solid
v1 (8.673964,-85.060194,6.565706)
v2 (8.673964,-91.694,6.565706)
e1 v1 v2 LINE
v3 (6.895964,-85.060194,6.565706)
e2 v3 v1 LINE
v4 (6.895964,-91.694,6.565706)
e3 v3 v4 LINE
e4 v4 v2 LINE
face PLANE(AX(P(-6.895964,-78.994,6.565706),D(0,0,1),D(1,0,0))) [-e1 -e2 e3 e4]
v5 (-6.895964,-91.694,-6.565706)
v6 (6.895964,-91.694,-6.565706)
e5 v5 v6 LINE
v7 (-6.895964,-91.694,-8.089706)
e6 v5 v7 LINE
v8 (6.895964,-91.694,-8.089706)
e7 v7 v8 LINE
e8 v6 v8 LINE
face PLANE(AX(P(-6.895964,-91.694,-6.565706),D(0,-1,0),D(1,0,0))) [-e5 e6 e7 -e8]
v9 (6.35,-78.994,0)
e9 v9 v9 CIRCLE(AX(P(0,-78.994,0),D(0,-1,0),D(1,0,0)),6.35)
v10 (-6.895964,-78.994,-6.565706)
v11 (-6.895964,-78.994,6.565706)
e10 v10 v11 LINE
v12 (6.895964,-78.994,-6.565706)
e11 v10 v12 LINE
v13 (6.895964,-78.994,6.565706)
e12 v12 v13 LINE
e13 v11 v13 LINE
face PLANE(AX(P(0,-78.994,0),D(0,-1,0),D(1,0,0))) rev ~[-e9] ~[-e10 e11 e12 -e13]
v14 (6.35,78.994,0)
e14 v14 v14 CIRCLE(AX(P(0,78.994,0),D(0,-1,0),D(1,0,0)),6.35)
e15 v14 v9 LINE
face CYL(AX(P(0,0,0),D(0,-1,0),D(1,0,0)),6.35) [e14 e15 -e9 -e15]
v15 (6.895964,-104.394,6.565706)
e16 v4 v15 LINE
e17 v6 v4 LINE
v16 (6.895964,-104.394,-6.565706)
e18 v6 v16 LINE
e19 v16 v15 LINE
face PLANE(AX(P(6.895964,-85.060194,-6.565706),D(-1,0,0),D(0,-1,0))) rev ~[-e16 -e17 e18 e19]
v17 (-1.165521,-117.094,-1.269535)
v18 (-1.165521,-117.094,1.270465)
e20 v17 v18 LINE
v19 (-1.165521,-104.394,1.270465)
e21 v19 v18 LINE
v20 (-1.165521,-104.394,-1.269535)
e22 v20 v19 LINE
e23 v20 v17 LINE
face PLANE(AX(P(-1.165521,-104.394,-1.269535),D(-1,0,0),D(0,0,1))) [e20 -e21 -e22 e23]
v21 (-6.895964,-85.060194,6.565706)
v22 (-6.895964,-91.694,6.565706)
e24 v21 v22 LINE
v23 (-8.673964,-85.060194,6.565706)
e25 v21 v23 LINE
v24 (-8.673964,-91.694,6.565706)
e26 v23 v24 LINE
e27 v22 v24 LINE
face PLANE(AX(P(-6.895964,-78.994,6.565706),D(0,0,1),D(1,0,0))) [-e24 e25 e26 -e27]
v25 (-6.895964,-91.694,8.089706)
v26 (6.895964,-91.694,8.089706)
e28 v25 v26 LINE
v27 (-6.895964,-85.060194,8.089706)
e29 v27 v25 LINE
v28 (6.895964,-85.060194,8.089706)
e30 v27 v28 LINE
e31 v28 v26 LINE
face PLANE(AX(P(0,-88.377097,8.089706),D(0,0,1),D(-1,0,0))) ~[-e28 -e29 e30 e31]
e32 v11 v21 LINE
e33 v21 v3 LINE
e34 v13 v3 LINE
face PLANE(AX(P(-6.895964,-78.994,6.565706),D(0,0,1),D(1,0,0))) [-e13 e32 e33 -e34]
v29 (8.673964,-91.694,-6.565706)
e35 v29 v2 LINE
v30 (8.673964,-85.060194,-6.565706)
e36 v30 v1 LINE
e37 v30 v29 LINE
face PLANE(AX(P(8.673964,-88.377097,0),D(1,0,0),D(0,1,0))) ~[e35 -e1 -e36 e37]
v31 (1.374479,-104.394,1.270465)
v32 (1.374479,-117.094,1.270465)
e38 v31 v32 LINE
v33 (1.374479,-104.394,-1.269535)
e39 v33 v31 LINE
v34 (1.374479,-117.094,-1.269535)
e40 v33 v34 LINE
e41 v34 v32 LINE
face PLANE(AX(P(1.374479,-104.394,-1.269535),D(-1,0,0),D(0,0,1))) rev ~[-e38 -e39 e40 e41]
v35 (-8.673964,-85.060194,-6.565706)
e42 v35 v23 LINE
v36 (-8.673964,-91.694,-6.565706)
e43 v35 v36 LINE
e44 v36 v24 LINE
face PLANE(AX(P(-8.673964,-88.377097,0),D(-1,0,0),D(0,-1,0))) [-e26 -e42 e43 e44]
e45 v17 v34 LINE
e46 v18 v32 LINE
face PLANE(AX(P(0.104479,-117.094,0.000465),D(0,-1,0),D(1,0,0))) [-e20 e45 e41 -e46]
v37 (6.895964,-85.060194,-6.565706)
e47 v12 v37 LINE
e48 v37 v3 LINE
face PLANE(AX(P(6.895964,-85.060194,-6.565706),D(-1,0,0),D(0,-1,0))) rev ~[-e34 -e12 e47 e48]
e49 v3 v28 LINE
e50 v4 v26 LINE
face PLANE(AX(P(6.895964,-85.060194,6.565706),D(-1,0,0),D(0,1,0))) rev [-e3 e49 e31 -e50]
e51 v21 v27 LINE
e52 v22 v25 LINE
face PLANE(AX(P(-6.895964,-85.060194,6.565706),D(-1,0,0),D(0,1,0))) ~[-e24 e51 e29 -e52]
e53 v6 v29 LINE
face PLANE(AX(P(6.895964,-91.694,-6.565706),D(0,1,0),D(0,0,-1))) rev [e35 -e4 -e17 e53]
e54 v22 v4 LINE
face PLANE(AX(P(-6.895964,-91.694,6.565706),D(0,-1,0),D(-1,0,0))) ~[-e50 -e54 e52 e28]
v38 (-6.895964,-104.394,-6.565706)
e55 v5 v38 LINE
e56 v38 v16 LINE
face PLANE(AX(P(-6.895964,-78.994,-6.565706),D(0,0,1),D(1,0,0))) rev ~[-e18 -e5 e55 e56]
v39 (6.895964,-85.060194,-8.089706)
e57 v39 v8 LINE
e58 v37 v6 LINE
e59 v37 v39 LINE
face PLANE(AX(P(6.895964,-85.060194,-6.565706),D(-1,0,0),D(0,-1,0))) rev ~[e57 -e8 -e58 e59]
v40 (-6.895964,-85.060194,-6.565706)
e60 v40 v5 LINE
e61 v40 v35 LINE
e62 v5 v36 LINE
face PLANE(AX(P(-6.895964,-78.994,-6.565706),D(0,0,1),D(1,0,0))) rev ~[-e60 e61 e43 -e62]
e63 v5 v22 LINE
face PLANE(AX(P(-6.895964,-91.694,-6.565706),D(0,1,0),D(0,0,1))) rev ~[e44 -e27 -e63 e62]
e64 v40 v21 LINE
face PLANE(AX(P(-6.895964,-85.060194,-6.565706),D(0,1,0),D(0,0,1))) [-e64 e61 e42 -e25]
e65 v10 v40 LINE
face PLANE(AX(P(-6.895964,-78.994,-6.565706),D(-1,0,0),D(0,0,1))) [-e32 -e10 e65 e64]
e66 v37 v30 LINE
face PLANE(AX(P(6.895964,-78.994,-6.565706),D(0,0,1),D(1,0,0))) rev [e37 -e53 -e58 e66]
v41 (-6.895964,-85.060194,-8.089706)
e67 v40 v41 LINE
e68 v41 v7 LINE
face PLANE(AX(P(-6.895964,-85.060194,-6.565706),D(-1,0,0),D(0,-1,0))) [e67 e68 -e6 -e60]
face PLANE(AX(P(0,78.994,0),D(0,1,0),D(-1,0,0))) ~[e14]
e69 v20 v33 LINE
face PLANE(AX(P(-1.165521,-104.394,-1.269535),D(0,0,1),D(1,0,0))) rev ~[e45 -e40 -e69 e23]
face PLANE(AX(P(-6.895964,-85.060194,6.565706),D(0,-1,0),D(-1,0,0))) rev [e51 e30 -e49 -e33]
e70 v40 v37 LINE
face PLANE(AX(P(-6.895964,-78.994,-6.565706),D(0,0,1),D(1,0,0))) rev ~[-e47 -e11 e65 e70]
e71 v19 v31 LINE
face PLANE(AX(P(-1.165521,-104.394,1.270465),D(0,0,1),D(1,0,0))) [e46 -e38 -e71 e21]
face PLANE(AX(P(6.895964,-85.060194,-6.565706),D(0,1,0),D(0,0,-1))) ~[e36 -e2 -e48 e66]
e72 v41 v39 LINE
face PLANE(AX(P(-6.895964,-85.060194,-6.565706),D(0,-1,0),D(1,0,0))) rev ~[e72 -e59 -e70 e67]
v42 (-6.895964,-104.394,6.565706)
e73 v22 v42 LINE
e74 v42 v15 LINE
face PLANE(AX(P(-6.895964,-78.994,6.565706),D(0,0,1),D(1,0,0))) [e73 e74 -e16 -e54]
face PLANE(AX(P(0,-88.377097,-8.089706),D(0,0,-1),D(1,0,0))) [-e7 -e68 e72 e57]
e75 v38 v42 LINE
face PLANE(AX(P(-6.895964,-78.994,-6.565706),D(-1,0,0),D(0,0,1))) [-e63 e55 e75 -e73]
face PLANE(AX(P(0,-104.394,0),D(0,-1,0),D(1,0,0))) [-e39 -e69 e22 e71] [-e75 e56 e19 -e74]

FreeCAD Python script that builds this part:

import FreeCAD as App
import Part
import Sketcher
Q = App.Units.Quantity


def add_polygon(sketch, points):
    """Adds a closed chain of lines whose ends are joined by coincident constraints."""
    first, n = sketch.GeometryCount, len(points)
    for a, b in zip(points, points[1:] + points[:1]):
        sketch.addGeometry(Part.LineSegment(App.Vector(*a, 0), App.Vector(*b, 0)), False)
    for i in range(n):
        sketch.addConstraint(Sketcher.Constraint("Coincident", first + i, 2, first + (i + 1) % n, 1))

doc = App.newDocument("Part")
params = doc.addObject("Spreadsheet::Sheet", "Params")
for row, (alias, value) in enumerate([
    ("sketch1_diameter", "0.5 in"),
    ("pad1_length", "3.11 in"),
    ("pad2_length", "1 in"),
    ("pad3_length", "0.07 in"),
    ("pad4_length", "0.06 in"),
    ("sketch5_width", "0.1 in"),
    ("pad5_length", "0.5 in"),
], start=1):
    params.set(f"A{row}", alias)
    params.set(f"B{row}", "=" + value)
    params.setAlias(f"B{row}", alias)

body = doc.addObject("PartDesign::Body", "Body")

# Sketch on XZ plane
sketch1 = doc.addObject("Sketcher::SketchObject", "Sketch")
body.addObject(sketch1)
sketch1.AttachmentSupport = (doc.XZ_Plane, [""])
sketch1.MapMode = "FlatFace"
sketch1.addGeometry(Part.Circle(App.Vector(0, 0, 0), App.Vector(0, 0, 1), 6), False)
sketch1.addConstraint(Sketcher.Constraint("Coincident", 0, 3, -1, 1))
sketch1.addConstraint(Sketcher.Constraint("Diameter", 0, Q("0.5 in")))
sketch1.setExpression("Constraints[1]", "Params.sketch1_diameter")
pad1 = doc.addObject("PartDesign::Pad", "Pad")
body.addObject(pad1)
pad1.Profile = sketch1
pad1.setExpression("Length", "Params.pad1_length")
body2 = doc.addObject("PartDesign::Body", "Body001")
doc.recompute()

body2.BaseFeature = body
doc.recompute()

mirroring = doc.addObject("Part::Mirroring", "Mirroring")
mirroring.Source = body
mirroring.Base = App.Vector(0, 0, 0)
mirroring.Normal = App.Vector(0, -1, 0)
body3 = doc.addObject("PartDesign::Body", "Body002")
body3.BaseFeature = mirroring
boolean = doc.addObject("PartDesign::Boolean", "Boolean")
body2.addObject(boolean)
boolean.Type = "Fuse"
boolean.addObjects([body3])
doc.recompute()

# Sketch on XZ plane
sketch2 = doc.addObject("Sketcher::SketchObject", "Sketch001")
body2.addObject(sketch2)
sketch2.AttachmentSupport = (doc.getObject("XZ_Plane001"), [""])
sketch2.MapMode = "FlatFace"
sketch2.AttachmentOffset = App.Placement(App.Vector(0, 0, 3.11 * 25.4), App.Rotation())
add_polygon(sketch2, [(-7, 7), (-7, -7), (7, -7), (7, 7)])  # lines 0-3
sketch2.addConstraint(Sketcher.Constraint("Vertical", 0))
sketch2.addConstraint(Sketcher.Constraint("Horizontal", 1))
sketch2.addConstraint(Sketcher.Constraint("Vertical", 2))
sketch2.addConstraint(Sketcher.Constraint("Horizontal", 3))
sketch2.addConstraint(Sketcher.Constraint("Symmetric", 0, 2, 2, 2, -1, 1))
sketch2.addConstraint(Sketcher.Constraint("DistanceY", 0, 2, 0, 1, 13.131412))
sketch2.addConstraint(Sketcher.Constraint("DistanceX", 1, 1, 1, 2, 13.791928))
pad2 = doc.addObject("PartDesign::Pad", "Pad001")
body2.addObject(pad2)
pad2.Profile = sketch2
pad2.setExpression("Length", "Params.pad2_length")

# Sketch on YZ plane
sketch3 = doc.addObject("Sketcher::SketchObject", "Sketch002")
body2.addObject(sketch3)
sketch3.AttachmentSupport = (doc.getObject("YZ_Plane001"), [""])
sketch3.MapMode = "FlatFace"
sketch3.AttachmentOffset = App.Placement(App.Vector(0, 0, -6.895964), App.Rotation())
add_polygon(sketch3, [(-85, 7), (-85, -7), (-92, -7), (-92, 7)])  # lines 0-3
sketch3.addConstraint(Sketcher.Constraint("Vertical", 0))
sketch3.addConstraint(Sketcher.Constraint("Horizontal", 1))
sketch3.addConstraint(Sketcher.Constraint("Vertical", 2))
sketch3.addConstraint(Sketcher.Constraint("Horizontal", 3))
sketch3.addConstraint(Sketcher.Constraint("DistanceX", 1, 2, -1, 1, Q("3.61 in")))
sketch3.addConstraint(Sketcher.Constraint("DistanceY", 0, 2, 0, 1, 13.131412))
sketch3.addConstraint(Sketcher.Constraint("DistanceX", 1, 2, 1, 1, 6.633806))
sketch3.addConstraint(Sketcher.Constraint("DistanceY", 0, 2, -1, 1, 6.565706))
pad3 = doc.addObject("PartDesign::Pad", "Pad002")
body2.addObject(pad3)
pad3.Profile = sketch3
pad3.setExpression("Length", "Params.pad3_length")
pad3.Reversed = True

# Sketch on XY plane
sketch4 = doc.addObject("Sketcher::SketchObject", "Sketch003")
body2.addObject(sketch4)
sketch4.AttachmentSupport = (doc.getObject("XY_Plane001"), [""])
sketch4.MapMode = "FlatFace"
sketch4.AttachmentOffset = App.Placement(App.Vector(0, 0, -6.565706), App.Rotation())
add_polygon(sketch4, [(-7, -92), (-7, -85), (7, -85), (7, -92)])  # lines 0-3
sketch4.addConstraint(Sketcher.Constraint("Vertical", 0))
sketch4.addConstraint(Sketcher.Constraint("Horizontal", 1))
sketch4.addConstraint(Sketcher.Constraint("Vertical", 2))
sketch4.addConstraint(Sketcher.Constraint("Horizontal", 3))
sketch4.addConstraint(Sketcher.Constraint("DistanceY", 2, 2, -1, 1, Q("3.61 in")))
sketch4.addConstraint(Sketcher.Constraint("DistanceX", 1, 1, 1, 2, 13.791928))
sketch4.addConstraint(Sketcher.Constraint("DistanceY", 0, 1, 0, 2, 6.633806))
sketch4.addConstraint(Sketcher.Constraint("DistanceX", 0, 2, -1, 1, 6.895964))
pad4 = doc.addObject("PartDesign::Pad", "Pad003")
body2.addObject(pad4)
pad4.Profile = sketch4
pad4.setExpression("Length", "Params.pad4_length")
pad4.Reversed = True
body4 = doc.addObject("PartDesign::Body", "Body003")
doc.recompute()

body4.BaseFeature = body2
doc.recompute()

mirroring2 = doc.addObject("Part::Mirroring", "Mirroring001")
mirroring2.Source = body2
mirroring2.Base = App.Vector(0, 0, 0)
mirroring2.Normal = App.Vector(1, 0, 0)
body5 = doc.addObject("PartDesign::Body", "Body004")
body5.BaseFeature = mirroring2
boolean2 = doc.addObject("PartDesign::Boolean", "Boolean001")
body4.addObject(boolean2)
boolean2.Type = "Fuse"
boolean2.addObjects([body5])
doc.recompute()
body6 = doc.addObject("PartDesign::Body", "Body005")
doc.recompute()

body6.BaseFeature = body4
doc.recompute()

mirroring3 = doc.addObject("Part::Mirroring", "Mirroring002")
mirroring3.Source = body4
mirroring3.Base = App.Vector(0, 0, 0)
mirroring3.Normal = App.Vector(0, 0, 1)
body7 = doc.addObject("PartDesign::Body", "Body006")
body7.BaseFeature = mirroring3
boolean3 = doc.addObject("PartDesign::Boolean", "Boolean002")
body6.addObject(boolean3)
boolean3.Type = "Fuse"
boolean3.addObjects([body7])
doc.recompute()

# Sketch on XZ plane
sketch5 = doc.addObject("Sketcher::SketchObject", "Sketch004")
body6.addObject(sketch5)
sketch5.AttachmentSupport = (doc.getObject("XZ_Plane005"), [""])
sketch5.MapMode = "FlatFace"
sketch5.AttachmentOffset = App.Placement(App.Vector(0, 0, 4.11 * 25.4), App.Rotation())
add_polygon(sketch5, [(-1.2, 1.3), (-1.2, -1.3), (1.4, -1.3), (1.4, 1.3)])  # lines 0-3
sketch5.addConstraint(Sketcher.Constraint("Vertical", 0))
sketch5.addConstraint(Sketcher.Constraint("Horizontal", 1))
sketch5.addConstraint(Sketcher.Constraint("Vertical", 2))
sketch5.addConstraint(Sketcher.Constraint("Horizontal", 3))
sketch5.addConstraint(Sketcher.Constraint("Equal", 3, 0))
sketch5.addConstraint(Sketcher.Constraint("DistanceX", 1, 1, 1, 2, Q("0.1 in")))
sketch5.addConstraint(Sketcher.Constraint("DistanceX", 0, 2, -1, 1, 1.165521))
sketch5.addConstraint(Sketcher.Constraint("DistanceY", 0, 2, -1, 1, 1.269535))
sketch5.setExpression("Constraints[9]", "Params.sketch5_width")
pad5 = doc.addObject("PartDesign::Pad", "Pad004")
body6.addObject(pad5)
pad5.Profile = sketch5
pad5.setExpression("Length", "Params.pad5_length")
mirroring.Visibility = False
mirroring2.Visibility = False
mirroring3.Visibility = False

doc.recompute()
